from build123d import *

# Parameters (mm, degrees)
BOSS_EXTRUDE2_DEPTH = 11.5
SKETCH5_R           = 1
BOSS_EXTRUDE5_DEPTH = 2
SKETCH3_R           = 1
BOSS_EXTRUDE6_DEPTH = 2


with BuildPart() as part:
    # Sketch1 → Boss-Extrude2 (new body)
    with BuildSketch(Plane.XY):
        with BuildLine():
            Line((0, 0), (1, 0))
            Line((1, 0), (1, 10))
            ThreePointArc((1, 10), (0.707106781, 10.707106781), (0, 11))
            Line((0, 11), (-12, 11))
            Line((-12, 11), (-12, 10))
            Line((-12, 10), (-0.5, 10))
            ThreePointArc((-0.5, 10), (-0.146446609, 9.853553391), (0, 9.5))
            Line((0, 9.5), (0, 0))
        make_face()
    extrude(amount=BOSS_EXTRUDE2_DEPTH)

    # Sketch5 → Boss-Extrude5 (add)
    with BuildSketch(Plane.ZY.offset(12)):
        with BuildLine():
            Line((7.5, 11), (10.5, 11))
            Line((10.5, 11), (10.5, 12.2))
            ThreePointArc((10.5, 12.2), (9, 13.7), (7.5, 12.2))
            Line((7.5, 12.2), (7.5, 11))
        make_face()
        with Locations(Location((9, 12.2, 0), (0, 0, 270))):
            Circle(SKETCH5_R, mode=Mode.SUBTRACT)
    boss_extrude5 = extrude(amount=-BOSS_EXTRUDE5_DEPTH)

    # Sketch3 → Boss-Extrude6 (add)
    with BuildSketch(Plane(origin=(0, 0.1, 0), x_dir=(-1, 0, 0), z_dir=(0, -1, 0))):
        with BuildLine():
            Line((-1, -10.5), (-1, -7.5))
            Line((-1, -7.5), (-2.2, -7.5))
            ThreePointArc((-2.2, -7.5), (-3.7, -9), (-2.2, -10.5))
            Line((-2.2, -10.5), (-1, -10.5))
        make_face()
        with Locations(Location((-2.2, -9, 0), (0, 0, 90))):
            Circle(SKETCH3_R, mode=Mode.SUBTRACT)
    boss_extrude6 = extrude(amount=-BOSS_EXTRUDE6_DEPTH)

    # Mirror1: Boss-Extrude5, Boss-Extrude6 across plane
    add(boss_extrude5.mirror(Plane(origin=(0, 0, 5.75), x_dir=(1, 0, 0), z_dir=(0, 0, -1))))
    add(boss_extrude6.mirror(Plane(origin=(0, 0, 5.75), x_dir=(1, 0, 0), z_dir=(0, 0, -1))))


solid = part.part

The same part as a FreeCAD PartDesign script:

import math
import FreeCAD as App
import Part
import Sketcher
from FreeCAD import Vector

doc = App.newDocument("Part")
body = doc.addObject("PartDesign::Body", "Body")

# Sketch on XY plane
sketch1 = doc.addObject("Sketcher::SketchObject", "Sketch")
body.addObject(sketch1)
sketch1.AttachmentSupport = (doc.XY_Plane, [""])
sketch1.MapMode = "FlatFace"
sketch1.addGeometry(Part.LineSegment(Vector(0, 0, 0), Vector(1, 0, 0)), False)
sketch1.addGeometry(Part.LineSegment(Vector(1, 0, 0), Vector(1, 10, 0)), False)
sketch1.addGeometry(Part.ArcOfCircle(Part.Circle(Vector(0, 10, 0), Vector(0, 0, 1), 1), math.radians(0), math.radians(90)), False)
sketch1.addGeometry(Part.LineSegment(Vector(0, 11, 0), Vector(-12, 11, 0)), False)
sketch1.addGeometry(Part.LineSegment(Vector(-12, 11, 0), Vector(-12, 10, 0)), False)
sketch1.addGeometry(Part.LineSegment(Vector(-12, 10, 0), Vector(-0.5, 10, 0)), False)
sketch1.addGeometry(Part.ArcOfCircle(Part.Circle(Vector(-0.5, 9.5, 0), Vector(0, 0, 1), 0.5), math.radians(0), math.radians(90)), False)
sketch1.addGeometry(Part.LineSegment(Vector(0, 9.5, 0), Vector(0, 0, 0)), False)
sketch1.addConstraint(Sketcher.Constraint("Coincident", 0, 2, 1, 1))
sketch1.addConstraint(Sketcher.Constraint("Tangent", 1, 2, 2, 1))
sketch1.addConstraint(Sketcher.Constraint("Tangent", 2, 2, 3, 1))
sketch1.addConstraint(Sketcher.Constraint("Coincident", 3, 2, 4, 1))
sketch1.addConstraint(Sketcher.Constraint("Coincident", 4, 2, 5, 1))
sketch1.addConstraint(Sketcher.Constraint("Tangent", 5, 2, 6, 2))
sketch1.addConstraint(Sketcher.Constraint("Tangent", 6, 1, 7, 1))
sketch1.addConstraint(Sketcher.Constraint("Coincident", 7, 2, 0, 1))
sketch1.addConstraint(Sketcher.Constraint("Horizontal", 0))
sketch1.addConstraint(Sketcher.Constraint("Vertical", 1))
sketch1.addConstraint(Sketcher.Constraint("Horizontal", 3))
sketch1.addConstraint(Sketcher.Constraint("Vertical", 4))
sketch1.addConstraint(Sketcher.Constraint("Horizontal", 5))
sketch1.addConstraint(Sketcher.Constraint("Vertical", 7))
sketch1.addConstraint(Sketcher.Constraint("Coincident", 7, 2, -1, 1))
sketch1.addConstraint(Sketcher.Constraint("PointOnObject", 2, 3, -2))
sketch1.addConstraint(Sketcher.Constraint("Horizontal", 1, 2, 4, 2))
sketch1.addConstraint(Sketcher.Constraint("Radius", 2, 1.0))
sketch1.addConstraint(Sketcher.Constraint("Radius", 6, 0.5))
sketch1.addConstraint(Sketcher.Constraint("DistanceX", 3, 2, 3, 1, 12.0))
sketch1.addConstraint(Sketcher.Constraint("DistanceY", 1, 1, 1, 2, 10.0))
pad1 = doc.addObject("PartDesign::Pad", "Pad")
body.addObject(pad1)
pad1.Profile = sketch1
pad1.Length = 11.5

# Sketch on YZ plane
sketch2 = doc.addObject("Sketcher::SketchObject", "Sketch001")
body.addObject(sketch2)
sketch2.AttachmentSupport = (doc.YZ_Plane, [""])
sketch2.MapMode = "FlatFace"
sketch2.AttachmentOffset = App.Placement(Vector(0, 0, -12), App.Rotation())
sketch2.addGeometry(Part.LineSegment(Vector(11, 7.5, 0), Vector(11, 10.5, 0)), False)
sketch2.addGeometry(Part.LineSegment(Vector(11, 10.5, 0), Vector(12.2, 10.5, 0)), False)
sketch2.addGeometry(Part.ArcOfCircle(Part.Circle(Vector(12.2, 9, 0), Vector(0, 0, 1), 1.5), math.radians(-90), math.radians(90)), False)
sketch2.addGeometry(Part.LineSegment(Vector(12.2, 7.5, 0), Vector(11, 7.5, 0)), False)
sketch2.addGeometry(Part.Circle(Vector(12.2, 9, 0), Vector(0, 0, 1), 1), False)
sketch2.addConstraint(Sketcher.Constraint("Coincident", 0, 2, 1, 1))
sketch2.addConstraint(Sketcher.Constraint("Tangent", 1, 2, 2, 2))
sketch2.addConstraint(Sketcher.Constraint("Tangent", 2, 1, 3, 1))
sketch2.addConstraint(Sketcher.Constraint("Coincident", 3, 2, 0, 1))
sketch2.addConstraint(Sketcher.Constraint("Vertical", 0))
sketch2.addConstraint(Sketcher.Constraint("Horizontal", 1))
sketch2.addConstraint(Sketcher.Constraint("Horizontal", 3))
sketch2.addConstraint(Sketcher.Constraint("Coincident", 4, 3, 2, 3))
sketch2.addConstraint(Sketcher.Constraint("Diameter", 4, 2.0))
sketch2.addConstraint(Sketcher.Constraint("Radius", 2, 1.5))
sketch2.addConstraint(Sketcher.Constraint("DistanceX", 1, 1, 1, 2, 1.2))
sketch2.addConstraint(Sketcher.Constraint("DistanceY", -1, 1, 2, 3, 9.0))
sketch2.addConstraint(Sketcher.Constraint("DistanceX", -1, 1, 0, 2, 11.0))
pad2 = doc.addObject("PartDesign::Pad", "Pad001")
body.addObject(pad2)
pad2.Profile = sketch2
pad2.Length = 2

# Sketch on XZ plane
sketch3 = doc.addObject("Sketcher::SketchObject", "Sketch002")
body.addObject(sketch3)
sketch3.AttachmentSupport = (doc.XZ_Plane, [""])
sketch3.MapMode = "FlatFace"
sketch3.AttachmentOffset = App.Placement(Vector(0, 0, -0.1), App.Rotation())
sketch3.addGeometry(Part.LineSegment(Vector(1, 10.5, 0), Vector(1, 7.5, 0)), False)
sketch3.addGeometry(Part.LineSegment(Vector(1, 7.5, 0), Vector(2.2, 7.5, 0)), False)
sketch3.addGeometry(Part.ArcOfCircle(Part.Circle(Vector(2.2, 9, 0), Vector(0, 0, 1), 1.5), math.radians(-90), math.radians(90)), False)
sketch3.addGeometry(Part.LineSegment(Vector(2.2, 10.5, 0), Vector(1, 10.5, 0)), False)
sketch3.addGeometry(Part.Circle(Vector(2.2, 9, 0), Vector(0, 0, 1), 1), False)
sketch3.addConstraint(Sketcher.Constraint("Coincident", 0, 2, 1, 1))
sketch3.addConstraint(Sketcher.Constraint("Tangent", 1, 2, 2, 1))
sketch3.addConstraint(Sketcher.Constraint("Tangent", 2, 2, 3, 1))
sketch3.addConstraint(Sketcher.Constraint("Coincident", 3, 2, 0, 1))
sketch3.addConstraint(Sketcher.Constraint("Vertical", 0))
sketch3.addConstraint(Sketcher.Constraint("Horizontal", 1))
sketch3.addConstraint(Sketcher.Constraint("Horizontal", 3))
sketch3.addConstraint(Sketcher.Constraint("Coincident", 4, 3, 2, 3))
sketch3.addConstraint(Sketcher.Constraint("Diameter", 4, 2.0))
sketch3.addConstraint(Sketcher.Constraint("Radius", 2, 1.5))
sketch3.addConstraint(Sketcher.Constraint("DistanceX", 1, 1, 1, 2, 1.2))
sketch3.addConstraint(Sketcher.Constraint("DistanceY", -1, 1, 2, 3, 9.0))
sketch3.addConstraint(Sketcher.Constraint("DistanceX", -1, 1, 0, 2, 1.0))
pad3 = doc.addObject("PartDesign::Pad", "Pad002")
body.addObject(pad3)
pad3.Profile = sketch3
pad3.Length = 2
pad3.Reversed = True
doc.recompute()

datumplane = doc.addObject("PartDesign::Plane", "DatumPlane")
body.addObject(datumplane)
datumplane.AttachmentSupport = (doc.XY_Plane, [""])
datumplane.MapMode = "FlatFace"
datumplane.AttachmentOffset = App.Placement(Vector(0, 0, 5.75), App.Rotation())
mirrored = doc.addObject("PartDesign::Mirrored", "Mirrored")
body.addObject(mirrored)
mirrored.Originals = [pad2, pad3]
mirrored.MirrorPlane = (datumplane, [""])
body.Tip = mirrored

doc.recompute()
